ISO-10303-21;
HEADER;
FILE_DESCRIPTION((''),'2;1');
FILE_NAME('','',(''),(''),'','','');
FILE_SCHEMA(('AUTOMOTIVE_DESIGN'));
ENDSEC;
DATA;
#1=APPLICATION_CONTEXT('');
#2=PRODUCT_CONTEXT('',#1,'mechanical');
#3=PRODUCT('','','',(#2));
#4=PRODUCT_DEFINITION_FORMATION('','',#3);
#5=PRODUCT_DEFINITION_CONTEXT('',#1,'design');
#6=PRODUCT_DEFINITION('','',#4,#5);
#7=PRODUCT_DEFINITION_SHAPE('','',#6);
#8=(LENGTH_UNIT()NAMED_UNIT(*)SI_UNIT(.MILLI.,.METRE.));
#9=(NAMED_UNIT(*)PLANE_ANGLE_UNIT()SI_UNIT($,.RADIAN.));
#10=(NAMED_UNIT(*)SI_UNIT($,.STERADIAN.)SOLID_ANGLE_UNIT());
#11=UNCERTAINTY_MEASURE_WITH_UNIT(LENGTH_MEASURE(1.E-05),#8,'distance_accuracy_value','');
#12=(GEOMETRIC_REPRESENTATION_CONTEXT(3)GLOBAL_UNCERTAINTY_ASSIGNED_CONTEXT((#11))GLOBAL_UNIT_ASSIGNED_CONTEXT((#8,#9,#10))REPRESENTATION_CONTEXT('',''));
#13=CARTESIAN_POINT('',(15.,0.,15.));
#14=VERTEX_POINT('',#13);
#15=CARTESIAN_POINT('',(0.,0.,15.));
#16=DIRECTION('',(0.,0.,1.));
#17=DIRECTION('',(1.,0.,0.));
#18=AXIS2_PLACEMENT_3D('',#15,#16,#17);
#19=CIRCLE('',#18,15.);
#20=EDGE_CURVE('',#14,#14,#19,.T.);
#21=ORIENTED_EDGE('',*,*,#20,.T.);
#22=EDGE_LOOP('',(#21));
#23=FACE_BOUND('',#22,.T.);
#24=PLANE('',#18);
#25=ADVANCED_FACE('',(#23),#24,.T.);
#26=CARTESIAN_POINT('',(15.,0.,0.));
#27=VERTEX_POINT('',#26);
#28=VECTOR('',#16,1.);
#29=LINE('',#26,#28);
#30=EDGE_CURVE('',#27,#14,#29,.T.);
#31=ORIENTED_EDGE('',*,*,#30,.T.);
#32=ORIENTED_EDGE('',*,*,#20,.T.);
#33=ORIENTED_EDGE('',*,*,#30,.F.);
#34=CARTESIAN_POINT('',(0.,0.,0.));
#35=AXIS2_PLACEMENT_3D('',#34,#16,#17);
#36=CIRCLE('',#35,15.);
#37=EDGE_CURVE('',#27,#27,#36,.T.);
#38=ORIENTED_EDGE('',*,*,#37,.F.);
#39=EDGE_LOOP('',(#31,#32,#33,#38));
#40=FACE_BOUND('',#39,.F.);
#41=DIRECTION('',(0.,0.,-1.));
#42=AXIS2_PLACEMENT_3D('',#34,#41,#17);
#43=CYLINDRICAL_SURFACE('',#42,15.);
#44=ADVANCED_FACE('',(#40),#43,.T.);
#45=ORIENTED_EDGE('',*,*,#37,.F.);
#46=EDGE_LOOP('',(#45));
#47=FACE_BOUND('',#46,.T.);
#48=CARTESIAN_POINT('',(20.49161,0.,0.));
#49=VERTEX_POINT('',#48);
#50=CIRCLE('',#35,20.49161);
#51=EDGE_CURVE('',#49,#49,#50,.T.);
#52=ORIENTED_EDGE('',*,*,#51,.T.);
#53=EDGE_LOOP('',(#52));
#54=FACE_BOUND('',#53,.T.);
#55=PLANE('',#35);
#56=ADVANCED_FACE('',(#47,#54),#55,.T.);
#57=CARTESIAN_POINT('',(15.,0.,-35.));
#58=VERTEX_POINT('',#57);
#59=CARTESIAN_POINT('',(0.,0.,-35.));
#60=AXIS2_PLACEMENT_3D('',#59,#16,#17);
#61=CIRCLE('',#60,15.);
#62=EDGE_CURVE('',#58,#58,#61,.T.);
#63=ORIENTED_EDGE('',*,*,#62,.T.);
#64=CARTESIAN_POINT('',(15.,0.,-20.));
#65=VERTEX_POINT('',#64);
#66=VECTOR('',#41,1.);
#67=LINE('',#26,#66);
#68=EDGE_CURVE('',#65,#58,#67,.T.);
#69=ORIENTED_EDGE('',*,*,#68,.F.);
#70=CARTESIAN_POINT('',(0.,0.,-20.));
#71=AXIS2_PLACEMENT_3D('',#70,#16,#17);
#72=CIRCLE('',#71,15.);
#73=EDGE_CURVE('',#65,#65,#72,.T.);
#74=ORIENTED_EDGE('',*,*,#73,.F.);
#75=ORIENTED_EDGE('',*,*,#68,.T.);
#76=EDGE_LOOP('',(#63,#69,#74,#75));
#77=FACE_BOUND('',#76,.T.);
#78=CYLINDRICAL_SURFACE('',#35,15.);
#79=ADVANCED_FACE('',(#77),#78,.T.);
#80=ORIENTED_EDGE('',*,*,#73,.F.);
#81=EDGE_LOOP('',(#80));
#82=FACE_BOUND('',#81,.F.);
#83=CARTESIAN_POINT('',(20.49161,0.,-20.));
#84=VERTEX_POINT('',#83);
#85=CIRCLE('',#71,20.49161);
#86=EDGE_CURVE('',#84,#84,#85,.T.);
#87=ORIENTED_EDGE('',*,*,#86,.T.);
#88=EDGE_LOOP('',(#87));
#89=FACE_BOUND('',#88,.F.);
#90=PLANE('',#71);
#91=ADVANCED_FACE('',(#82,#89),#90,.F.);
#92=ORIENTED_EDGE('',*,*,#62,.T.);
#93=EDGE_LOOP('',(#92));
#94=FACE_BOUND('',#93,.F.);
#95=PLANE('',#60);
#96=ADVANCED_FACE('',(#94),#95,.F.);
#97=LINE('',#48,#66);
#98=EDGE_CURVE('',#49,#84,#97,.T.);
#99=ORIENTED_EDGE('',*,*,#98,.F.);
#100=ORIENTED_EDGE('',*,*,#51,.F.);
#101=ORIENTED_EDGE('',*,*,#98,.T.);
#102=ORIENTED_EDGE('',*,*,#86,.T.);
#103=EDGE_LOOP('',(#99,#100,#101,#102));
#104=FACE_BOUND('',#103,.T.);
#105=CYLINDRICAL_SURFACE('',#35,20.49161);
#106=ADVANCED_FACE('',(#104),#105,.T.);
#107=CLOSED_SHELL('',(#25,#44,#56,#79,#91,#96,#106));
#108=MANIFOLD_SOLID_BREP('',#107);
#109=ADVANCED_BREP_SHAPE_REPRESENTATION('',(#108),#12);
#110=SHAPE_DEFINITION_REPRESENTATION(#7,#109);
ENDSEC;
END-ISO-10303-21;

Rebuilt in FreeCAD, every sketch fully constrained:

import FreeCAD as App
import Part
import Sketcher

V = App.Vector
Q = App.Units.Quantity

doc = App.newDocument("Part")
body = doc.addObject("PartDesign::Body", "Body")

# Sketch on XY plane
sketch1 = body.newObject("Sketcher::SketchObject", "Sketch")
sketch1.AttachmentSupport = (doc.getObject("XY_Plane"), [""])
sketch1.MapMode = "FlatFace"
sketch1.addGeometry(Part.Circle(V(0, 0, 0), V(0, 0, 1), 15), False)
sketch1.addConstraint(Sketcher.Constraint("Coincident", 0, 3, -1, 1))
sketch1.addConstraint(Sketcher.Constraint("Diameter", 0, Q("30 mm")))
pad1 = body.newObject("PartDesign::Pad", "Pad")
pad1.Profile = sketch1
pad1.Length = 15

# Sketch on XY plane
sketch2 = body.newObject("Sketcher::SketchObject", "Sketch001")
sketch2.AttachmentSupport = (doc.getObject("XY_Plane"), [""])
sketch2.MapMode = "FlatFace"
sketch2.addGeometry(Part.Circle(V(0, 0, 0), V(0, 0, 1), 20.49161), False)
sketch2.addConstraint(Sketcher.Constraint("Coincident", 0, 3, -1, 1))
sketch2.addConstraint(Sketcher.Constraint("Diameter", 0, Q("40.98322 mm")))
pad2 = body.newObject("PartDesign::Pad", "Pad001")
pad2.Profile = sketch2
pad2.Length = 20
pad2.Reversed = True

# Sketch on XY plane
sketch3 = body.newObject("Sketcher::SketchObject", "Sketch002")
sketch3.AttachmentSupport = (doc.getObject("XY_Plane"), [""])
sketch3.MapMode = "FlatFace"
sketch3.addGeometry(Part.Circle(V(0, 0, 0), V(0, 0, 1), 15), False)
sketch3.addConstraint(Sketcher.Constraint("Coincident", 0, 3, -1, 1))
sketch3.addConstraint(Sketcher.Constraint("Diameter", 0, Q("30 mm")))
pad3 = body.newObject("PartDesign::Pad", "Pad002")
pad3.Profile = sketch3
pad3.Length = 35
pad3.Reversed = True

doc.recompute()
